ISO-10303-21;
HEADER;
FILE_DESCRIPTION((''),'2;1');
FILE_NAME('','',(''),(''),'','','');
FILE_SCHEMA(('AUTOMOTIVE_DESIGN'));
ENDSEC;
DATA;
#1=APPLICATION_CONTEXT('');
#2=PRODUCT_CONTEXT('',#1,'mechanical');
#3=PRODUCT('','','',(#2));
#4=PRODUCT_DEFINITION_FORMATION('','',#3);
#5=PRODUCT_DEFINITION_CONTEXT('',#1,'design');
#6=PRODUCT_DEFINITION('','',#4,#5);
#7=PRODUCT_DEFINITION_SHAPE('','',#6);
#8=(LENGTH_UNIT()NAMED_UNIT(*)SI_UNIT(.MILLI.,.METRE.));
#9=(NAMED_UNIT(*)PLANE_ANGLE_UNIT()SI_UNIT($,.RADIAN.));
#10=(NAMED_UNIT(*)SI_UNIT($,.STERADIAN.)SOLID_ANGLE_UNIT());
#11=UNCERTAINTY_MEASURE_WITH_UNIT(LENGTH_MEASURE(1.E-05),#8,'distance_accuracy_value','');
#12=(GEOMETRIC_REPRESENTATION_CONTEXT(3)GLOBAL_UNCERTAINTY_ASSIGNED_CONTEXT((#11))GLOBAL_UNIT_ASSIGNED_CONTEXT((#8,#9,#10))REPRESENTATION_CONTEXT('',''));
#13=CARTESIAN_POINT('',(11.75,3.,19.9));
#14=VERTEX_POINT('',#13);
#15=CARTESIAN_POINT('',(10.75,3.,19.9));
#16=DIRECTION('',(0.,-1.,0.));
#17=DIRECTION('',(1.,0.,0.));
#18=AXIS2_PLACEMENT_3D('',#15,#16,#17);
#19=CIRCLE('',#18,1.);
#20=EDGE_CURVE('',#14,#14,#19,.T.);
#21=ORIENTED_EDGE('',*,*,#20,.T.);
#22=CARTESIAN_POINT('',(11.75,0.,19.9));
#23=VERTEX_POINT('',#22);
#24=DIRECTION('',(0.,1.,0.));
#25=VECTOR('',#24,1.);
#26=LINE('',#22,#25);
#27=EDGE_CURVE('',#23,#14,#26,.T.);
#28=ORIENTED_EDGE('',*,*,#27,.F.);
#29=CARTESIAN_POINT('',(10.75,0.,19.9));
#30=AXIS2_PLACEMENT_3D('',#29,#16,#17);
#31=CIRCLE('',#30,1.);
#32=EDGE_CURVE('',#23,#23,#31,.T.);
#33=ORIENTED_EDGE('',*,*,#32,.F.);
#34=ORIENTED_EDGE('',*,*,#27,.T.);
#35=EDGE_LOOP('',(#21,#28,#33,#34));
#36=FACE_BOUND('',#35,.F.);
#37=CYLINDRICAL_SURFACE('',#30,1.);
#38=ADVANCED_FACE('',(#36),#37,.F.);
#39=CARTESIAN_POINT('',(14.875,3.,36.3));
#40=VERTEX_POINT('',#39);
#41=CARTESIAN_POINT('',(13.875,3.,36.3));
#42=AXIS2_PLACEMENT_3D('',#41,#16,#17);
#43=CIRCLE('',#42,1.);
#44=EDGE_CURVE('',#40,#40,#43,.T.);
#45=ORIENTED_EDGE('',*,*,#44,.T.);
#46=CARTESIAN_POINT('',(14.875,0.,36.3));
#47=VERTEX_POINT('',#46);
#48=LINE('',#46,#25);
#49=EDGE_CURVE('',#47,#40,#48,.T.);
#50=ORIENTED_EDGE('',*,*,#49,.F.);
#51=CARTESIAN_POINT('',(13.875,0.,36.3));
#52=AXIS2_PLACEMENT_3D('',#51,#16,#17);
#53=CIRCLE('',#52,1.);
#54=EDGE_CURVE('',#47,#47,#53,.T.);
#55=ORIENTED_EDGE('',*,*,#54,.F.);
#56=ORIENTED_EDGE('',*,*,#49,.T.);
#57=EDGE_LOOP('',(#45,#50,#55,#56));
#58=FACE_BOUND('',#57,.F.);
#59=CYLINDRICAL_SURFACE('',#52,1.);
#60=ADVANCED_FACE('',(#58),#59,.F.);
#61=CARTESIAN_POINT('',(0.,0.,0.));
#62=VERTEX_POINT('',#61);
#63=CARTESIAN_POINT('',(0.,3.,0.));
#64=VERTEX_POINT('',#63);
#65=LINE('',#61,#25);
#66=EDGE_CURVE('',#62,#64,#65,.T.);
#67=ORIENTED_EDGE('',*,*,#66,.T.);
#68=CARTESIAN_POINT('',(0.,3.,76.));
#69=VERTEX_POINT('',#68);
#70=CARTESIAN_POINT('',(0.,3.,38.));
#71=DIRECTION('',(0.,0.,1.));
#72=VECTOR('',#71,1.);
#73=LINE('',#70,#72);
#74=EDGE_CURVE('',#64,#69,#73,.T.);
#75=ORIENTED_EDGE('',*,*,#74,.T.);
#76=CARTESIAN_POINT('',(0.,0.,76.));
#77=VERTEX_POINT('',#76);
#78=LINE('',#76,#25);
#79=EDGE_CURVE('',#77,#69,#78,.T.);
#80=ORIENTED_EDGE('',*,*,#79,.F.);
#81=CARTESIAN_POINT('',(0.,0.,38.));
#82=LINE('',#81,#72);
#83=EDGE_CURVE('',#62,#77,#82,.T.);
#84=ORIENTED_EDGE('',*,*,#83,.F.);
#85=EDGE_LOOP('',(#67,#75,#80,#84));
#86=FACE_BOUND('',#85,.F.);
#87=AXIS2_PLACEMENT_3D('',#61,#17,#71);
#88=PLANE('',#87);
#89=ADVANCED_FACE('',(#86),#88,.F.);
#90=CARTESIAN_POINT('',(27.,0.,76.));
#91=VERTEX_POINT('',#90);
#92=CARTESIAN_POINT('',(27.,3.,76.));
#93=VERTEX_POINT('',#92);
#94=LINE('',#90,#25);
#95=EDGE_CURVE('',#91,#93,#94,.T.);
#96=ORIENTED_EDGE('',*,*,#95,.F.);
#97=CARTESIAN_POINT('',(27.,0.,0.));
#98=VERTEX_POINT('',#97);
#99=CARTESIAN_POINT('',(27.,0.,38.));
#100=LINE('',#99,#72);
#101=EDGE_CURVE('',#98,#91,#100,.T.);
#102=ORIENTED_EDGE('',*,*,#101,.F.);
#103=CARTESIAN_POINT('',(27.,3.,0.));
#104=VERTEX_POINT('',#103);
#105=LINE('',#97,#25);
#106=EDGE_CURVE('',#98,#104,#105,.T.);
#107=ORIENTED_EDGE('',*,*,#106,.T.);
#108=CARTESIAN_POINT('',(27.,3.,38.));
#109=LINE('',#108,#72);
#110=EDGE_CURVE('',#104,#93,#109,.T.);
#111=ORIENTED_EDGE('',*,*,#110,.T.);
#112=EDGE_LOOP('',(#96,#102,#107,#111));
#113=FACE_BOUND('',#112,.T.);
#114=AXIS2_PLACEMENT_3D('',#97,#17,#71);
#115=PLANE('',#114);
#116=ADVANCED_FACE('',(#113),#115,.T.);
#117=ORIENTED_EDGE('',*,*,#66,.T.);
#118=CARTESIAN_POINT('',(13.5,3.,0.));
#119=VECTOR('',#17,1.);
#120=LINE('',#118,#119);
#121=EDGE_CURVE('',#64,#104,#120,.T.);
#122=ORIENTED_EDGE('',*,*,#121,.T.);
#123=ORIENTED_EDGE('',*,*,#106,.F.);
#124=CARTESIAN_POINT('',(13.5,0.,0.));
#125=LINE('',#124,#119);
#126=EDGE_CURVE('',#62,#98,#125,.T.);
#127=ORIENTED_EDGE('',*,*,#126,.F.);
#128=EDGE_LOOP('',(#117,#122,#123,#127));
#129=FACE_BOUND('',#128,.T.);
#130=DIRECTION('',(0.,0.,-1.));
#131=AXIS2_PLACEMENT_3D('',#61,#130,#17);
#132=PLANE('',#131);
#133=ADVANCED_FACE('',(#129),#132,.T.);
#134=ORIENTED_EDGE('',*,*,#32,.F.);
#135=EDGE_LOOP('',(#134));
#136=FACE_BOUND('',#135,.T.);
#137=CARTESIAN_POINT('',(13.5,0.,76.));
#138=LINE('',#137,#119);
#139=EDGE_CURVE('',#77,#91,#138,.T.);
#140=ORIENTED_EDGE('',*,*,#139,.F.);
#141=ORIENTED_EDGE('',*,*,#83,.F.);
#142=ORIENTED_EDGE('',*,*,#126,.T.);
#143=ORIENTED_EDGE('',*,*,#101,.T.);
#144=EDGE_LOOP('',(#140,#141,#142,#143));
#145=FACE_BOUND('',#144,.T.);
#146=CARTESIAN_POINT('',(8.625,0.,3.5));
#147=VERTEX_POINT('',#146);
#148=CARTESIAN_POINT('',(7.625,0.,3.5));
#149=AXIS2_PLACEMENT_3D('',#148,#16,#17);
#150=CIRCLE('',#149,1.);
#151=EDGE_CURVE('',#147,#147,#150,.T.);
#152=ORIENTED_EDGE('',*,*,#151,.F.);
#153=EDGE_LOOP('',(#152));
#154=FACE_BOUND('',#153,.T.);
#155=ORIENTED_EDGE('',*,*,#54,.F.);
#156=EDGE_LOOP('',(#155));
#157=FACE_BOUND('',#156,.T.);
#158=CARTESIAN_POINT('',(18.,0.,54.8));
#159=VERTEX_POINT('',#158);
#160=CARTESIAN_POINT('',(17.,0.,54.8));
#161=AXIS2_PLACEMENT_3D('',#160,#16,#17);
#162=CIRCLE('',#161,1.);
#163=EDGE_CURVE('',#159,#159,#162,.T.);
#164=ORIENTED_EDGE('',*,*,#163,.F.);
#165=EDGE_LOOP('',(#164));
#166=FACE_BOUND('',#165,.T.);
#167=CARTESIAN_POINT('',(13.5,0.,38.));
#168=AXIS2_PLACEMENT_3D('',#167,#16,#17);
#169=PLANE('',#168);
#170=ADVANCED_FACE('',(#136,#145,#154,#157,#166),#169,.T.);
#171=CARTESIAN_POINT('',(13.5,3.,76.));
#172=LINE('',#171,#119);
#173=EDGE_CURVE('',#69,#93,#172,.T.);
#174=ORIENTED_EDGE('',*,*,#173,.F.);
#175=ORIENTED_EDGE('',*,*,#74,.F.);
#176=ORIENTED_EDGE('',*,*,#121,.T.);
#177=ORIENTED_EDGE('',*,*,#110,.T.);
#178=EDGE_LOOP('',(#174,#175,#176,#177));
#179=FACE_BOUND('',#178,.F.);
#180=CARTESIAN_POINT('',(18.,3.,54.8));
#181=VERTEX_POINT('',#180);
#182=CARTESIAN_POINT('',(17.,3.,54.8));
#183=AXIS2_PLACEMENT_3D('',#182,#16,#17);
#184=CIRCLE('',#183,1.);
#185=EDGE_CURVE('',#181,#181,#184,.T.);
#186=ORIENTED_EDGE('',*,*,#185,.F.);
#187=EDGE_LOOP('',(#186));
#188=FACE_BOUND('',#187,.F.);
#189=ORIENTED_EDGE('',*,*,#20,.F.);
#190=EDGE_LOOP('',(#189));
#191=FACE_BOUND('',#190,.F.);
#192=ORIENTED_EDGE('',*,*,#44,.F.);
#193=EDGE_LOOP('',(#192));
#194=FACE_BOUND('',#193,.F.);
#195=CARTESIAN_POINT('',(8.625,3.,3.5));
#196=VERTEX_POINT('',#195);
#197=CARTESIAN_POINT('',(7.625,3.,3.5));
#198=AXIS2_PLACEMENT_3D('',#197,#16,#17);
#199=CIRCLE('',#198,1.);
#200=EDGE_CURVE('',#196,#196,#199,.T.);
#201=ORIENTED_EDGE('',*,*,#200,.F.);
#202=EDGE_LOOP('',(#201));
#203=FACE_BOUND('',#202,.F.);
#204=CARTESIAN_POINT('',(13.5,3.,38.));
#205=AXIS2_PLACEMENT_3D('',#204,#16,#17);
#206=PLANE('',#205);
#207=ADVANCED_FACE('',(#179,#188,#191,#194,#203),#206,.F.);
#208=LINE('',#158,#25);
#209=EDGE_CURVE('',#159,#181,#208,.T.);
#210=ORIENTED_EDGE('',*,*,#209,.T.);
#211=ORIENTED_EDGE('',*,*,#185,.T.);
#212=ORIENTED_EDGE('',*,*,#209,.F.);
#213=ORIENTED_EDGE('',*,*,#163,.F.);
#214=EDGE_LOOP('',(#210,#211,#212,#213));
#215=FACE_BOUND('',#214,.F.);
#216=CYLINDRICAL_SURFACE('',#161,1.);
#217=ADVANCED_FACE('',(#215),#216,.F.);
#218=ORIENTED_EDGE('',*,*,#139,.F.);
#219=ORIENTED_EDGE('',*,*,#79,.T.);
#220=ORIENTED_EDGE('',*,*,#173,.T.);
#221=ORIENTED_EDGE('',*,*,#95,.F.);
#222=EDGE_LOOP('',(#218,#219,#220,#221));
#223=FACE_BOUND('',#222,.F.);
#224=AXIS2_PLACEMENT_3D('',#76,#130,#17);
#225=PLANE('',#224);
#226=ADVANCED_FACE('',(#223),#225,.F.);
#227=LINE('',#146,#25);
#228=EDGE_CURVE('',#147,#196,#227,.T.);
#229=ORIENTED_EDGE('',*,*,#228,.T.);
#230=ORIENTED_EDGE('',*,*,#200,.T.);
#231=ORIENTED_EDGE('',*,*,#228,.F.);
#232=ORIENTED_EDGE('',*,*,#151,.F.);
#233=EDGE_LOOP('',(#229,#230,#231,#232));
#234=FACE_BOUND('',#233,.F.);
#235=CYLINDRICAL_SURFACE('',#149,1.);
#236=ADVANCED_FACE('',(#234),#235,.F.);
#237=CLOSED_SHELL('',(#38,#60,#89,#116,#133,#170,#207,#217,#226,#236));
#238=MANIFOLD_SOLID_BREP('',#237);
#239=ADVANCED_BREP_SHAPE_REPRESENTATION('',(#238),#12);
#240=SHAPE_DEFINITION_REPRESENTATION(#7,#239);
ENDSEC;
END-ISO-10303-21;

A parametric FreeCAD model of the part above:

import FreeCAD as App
import Part
import Sketcher

doc = App.newDocument("Part")
body = doc.addObject("PartDesign::Body", "Body")

# Sketch on XZ plane
sketch1 = doc.addObject("Sketcher::SketchObject", "Sketch")
body.addObject(sketch1)
sketch1.AttachmentSupport = (doc.XZ_Plane, [""])
sketch1.MapMode = "FlatFace"
sketch1.addGeometry(Part.LineSegment(App.Vector(0, 76, 0), App.Vector(0, 0, 0)), False)
sketch1.addGeometry(Part.LineSegment(App.Vector(0, 0, 0), App.Vector(27, 0, 0)), False)
sketch1.addGeometry(Part.LineSegment(App.Vector(27, 0, 0), App.Vector(27, 76, 0)), False)
sketch1.addGeometry(Part.LineSegment(App.Vector(27, 76, 0), App.Vector(0, 76, 0)), False)
sketch1.addConstraint(Sketcher.Constraint("Coincident", 0, 2, 1, 1))
sketch1.addConstraint(Sketcher.Constraint("Coincident", 1, 2, 2, 1))
sketch1.addConstraint(Sketcher.Constraint("Coincident", 2, 2, 3, 1))
sketch1.addConstraint(Sketcher.Constraint("Coincident", 3, 2, 0, 1))
sketch1.addConstraint(Sketcher.Constraint("Vertical", 0))
sketch1.addConstraint(Sketcher.Constraint("Horizontal", 1))
sketch1.addConstraint(Sketcher.Constraint("Vertical", 2))
sketch1.addConstraint(Sketcher.Constraint("Horizontal", 3))
sketch1.addConstraint(Sketcher.Constraint("Coincident", 0, 2, -1, 1))
sketch1.addConstraint(Sketcher.Constraint("DistanceX", 1, 1, 1, 2, 27.0))
sketch1.addConstraint(Sketcher.Constraint("DistanceY", 0, 2, 0, 1, 76.0))
pad1 = doc.addObject("PartDesign::Pad", "Pad")
body.addObject(pad1)
pad1.Profile = sketch1
pad1.Length = 3
pad1.Reversed = True

# Sketch on XZ plane
sketch2 = doc.addObject("Sketcher::SketchObject", "Sketch001")
body.addObject(sketch2)
sketch2.AttachmentSupport = (doc.XZ_Plane, [""])
sketch2.MapMode = "FlatFace"
sketch2.addGeometry(Part.Circle(App.Vector(17, 54.8, 0), App.Vector(0, 0, 1), 1), False)
sketch2.addGeometry(Part.Circle(App.Vector(13.9, 36.3, 0), App.Vector(0, 0, 1), 1), False)
sketch2.addGeometry(Part.Circle(App.Vector(10.8, 19.9, 0), App.Vector(0, 0, 1), 1), False)
sketch2.addGeometry(Part.Circle(App.Vector(7.6, 3.5, 0), App.Vector(0, 0, 1), 1), False)
sketch2.addConstraint(Sketcher.Constraint("Equal", 0, 1))
sketch2.addConstraint(Sketcher.Constraint("Equal", 1, 2))
sketch2.addConstraint(Sketcher.Constraint("Equal", 2, 3))
sketch2.addConstraint(Sketcher.Constraint("Diameter", 0, 2.0))
sketch2.addConstraint(Sketcher.Constraint("DistanceX", -1, 1, 0, 3, 17.0))
sketch2.addConstraint(Sketcher.Constraint("DistanceY", -1, 1, 0, 3, 54.8))
sketch2.addConstraint(Sketcher.Constraint("DistanceY", -1, 1, 1, 3, 36.3))
sketch2.addConstraint(Sketcher.Constraint("DistanceY", -1, 1, 2, 3, 19.9))
sketch2.addConstraint(Sketcher.Constraint("DistanceY", -1, 1, 3, 3, 3.5))
sketch2.addConstraint(Sketcher.Constraint("DistanceX", -1, 1, 2, 3, 10.75))
sketch2.addConstraint(Sketcher.Constraint("DistanceX", 3, 3, 1, 3, 6.25))
sketch2.addConstraint(Sketcher.Constraint("DistanceX", -1, 1, 1, 3, 13.875))
pocket1 = doc.addObject("PartDesign::Pocket", "Pocket")
body.addObject(pocket1)
pocket1.Profile = sketch2
pocket1.Length = 3

doc.recompute()
